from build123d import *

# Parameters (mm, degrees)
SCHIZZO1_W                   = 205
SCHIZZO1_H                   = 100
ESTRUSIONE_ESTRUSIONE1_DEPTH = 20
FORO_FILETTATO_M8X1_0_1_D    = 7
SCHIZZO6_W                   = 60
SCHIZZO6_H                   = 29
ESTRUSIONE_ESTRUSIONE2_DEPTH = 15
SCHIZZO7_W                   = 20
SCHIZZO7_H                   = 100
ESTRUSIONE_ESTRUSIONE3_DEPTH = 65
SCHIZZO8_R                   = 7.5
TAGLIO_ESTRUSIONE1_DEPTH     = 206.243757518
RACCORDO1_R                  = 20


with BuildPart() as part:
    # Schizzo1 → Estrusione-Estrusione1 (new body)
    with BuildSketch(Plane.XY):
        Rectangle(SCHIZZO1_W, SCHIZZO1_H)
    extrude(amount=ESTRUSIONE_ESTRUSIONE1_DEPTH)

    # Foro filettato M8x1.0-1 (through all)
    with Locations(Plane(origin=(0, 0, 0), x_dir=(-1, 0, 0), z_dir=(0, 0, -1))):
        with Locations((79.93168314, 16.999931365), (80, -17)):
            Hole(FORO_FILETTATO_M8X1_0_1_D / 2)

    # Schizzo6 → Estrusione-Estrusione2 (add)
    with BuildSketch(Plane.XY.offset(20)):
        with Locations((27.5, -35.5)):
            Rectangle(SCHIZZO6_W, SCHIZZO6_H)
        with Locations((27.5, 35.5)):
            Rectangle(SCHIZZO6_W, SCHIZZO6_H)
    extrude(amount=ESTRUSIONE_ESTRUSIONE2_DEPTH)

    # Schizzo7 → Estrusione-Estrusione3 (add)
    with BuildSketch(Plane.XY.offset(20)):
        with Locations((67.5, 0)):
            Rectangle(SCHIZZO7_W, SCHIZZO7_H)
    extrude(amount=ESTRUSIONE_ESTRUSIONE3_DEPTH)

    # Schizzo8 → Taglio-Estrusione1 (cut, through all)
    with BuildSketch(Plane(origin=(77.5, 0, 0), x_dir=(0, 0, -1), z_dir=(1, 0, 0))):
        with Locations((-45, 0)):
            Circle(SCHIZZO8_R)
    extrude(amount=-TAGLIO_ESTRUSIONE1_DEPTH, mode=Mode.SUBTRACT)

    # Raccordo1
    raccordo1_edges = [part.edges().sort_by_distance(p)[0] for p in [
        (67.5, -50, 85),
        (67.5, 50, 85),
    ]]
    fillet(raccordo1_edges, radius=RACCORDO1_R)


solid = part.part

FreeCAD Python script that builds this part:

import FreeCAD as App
import Part
import Sketcher
from FreeCAD import Vector
Q = App.Units.Quantity


def edges_at(feature, points):
    """Names of the edges that pass closest to the given points."""
    edges = feature.Shape.Edges
    near = lambda p: min(range(len(edges)), key=lambda i: edges[i].distToShape(Part.Vertex(*p))[0])
    return sorted({f"Edge{near(p) + 1}" for p in points})

doc = App.newDocument("Part")
body = doc.addObject("PartDesign::Body", "Body")

# Sketch on XY plane
sketch1 = body.newObject("Sketcher::SketchObject", "Sketch")
sketch1.AttachmentSupport = (doc.getObject("XY_Plane"), [""])
sketch1.MapMode = "FlatFace"
sketch1.addGeometry([
    Part.LineSegment(Vector(-102, 50, 0), Vector(-102, -50, 0)),
    Part.LineSegment(Vector(-102, -50, 0), Vector(102, -50, 0)),
    Part.LineSegment(Vector(102, -50, 0), Vector(102, 50, 0)),
    Part.LineSegment(Vector(102, 50, 0), Vector(-102, 50, 0)),
], False)
sketch1.addConstraint([
    Sketcher.Constraint("Coincident", 0, 2, 1, 1),
    Sketcher.Constraint("Coincident", 1, 2, 2, 1),
    Sketcher.Constraint("Coincident", 2, 2, 3, 1),
    Sketcher.Constraint("Coincident", 3, 2, 0, 1),
    Sketcher.Constraint("Vertical", 0),
    Sketcher.Constraint("Horizontal", 1),
    Sketcher.Constraint("Vertical", 2),
    Sketcher.Constraint("Horizontal", 3),
    Sketcher.Constraint("Symmetric", 0, 2, 2, 2, -1, 1),
    Sketcher.Constraint("DistanceX", 1, 1, 1, 2, Q("205 mm")),
    Sketcher.Constraint("DistanceY", 0, 2, 0, 1, Q("100 mm")),
])
pad1 = body.newObject("PartDesign::Pad", "Pad")
pad1.Profile = sketch1
pad1.Length = 20

# Sketch on XY plane
sketch2 = body.newObject("Sketcher::SketchObject", "Sketch001")
sketch2.AttachmentSupport = (doc.getObject("XY_Plane"), [""])
sketch2.MapMode = "FlatFace"
sketch2.addGeometry([
    Part.Circle(Vector(-79.9, 17, 0), Vector(0, 0, 1), 3.5),
    Part.Circle(Vector(-80, -17, 0), Vector(0, 0, 1), 3.5),
], False)
sketch2.addConstraint([
    Sketcher.Constraint("Equal", 0, 1),
    Sketcher.Constraint("Diameter", 0, Q("7 mm")),
    Sketcher.Constraint("DistanceX", 1, 3, -1, 1, Q("80 mm")),
    Sketcher.Constraint("DistanceY", 1, 3, -1, 1, Q("17 mm")),
    Sketcher.Constraint("DistanceY", -1, 1, 0, 3, Q("16.999931 mm")),
    Sketcher.Constraint("DistanceX", 0, 3, -1, 1, Q("79.931683 mm")),
])
doc.recompute()
hole = body.newObject("PartDesign::Hole", "Hole")
hole.Profile = sketch2
hole.ThreadType = "None"
hole.Diameter = 7
hole.DepthType = "ThroughAll"
hole.Reversed = True

# Sketch on XY plane
sketch3 = body.newObject("Sketcher::SketchObject", "Sketch002")
sketch3.AttachmentSupport = (doc.getObject("XY_Plane"), [""])
sketch3.MapMode = "FlatFace"
sketch3.AttachmentOffset = App.Placement(Vector(0, 0, 20), App.Rotation())
sketch3.addGeometry([
    Part.LineSegment(Vector(-2, -21, 0), Vector(-2, -50, 0)),  # 0
    Part.LineSegment(Vector(-2, -50, 0), Vector(58, -50, 0)),  # 1
    Part.LineSegment(Vector(58, -50, 0), Vector(58, -21, 0)),  # 2
    Part.LineSegment(Vector(58, -21, 0), Vector(-2, -21, 0)),  # 3
    Part.LineSegment(Vector(-2, 50, 0), Vector(-2, 21, 0)),  # 4
    Part.LineSegment(Vector(-2, 21, 0), Vector(58, 21, 0)),  # 5
    Part.LineSegment(Vector(58, 21, 0), Vector(58, 50, 0)),  # 6
    Part.LineSegment(Vector(58, 50, 0), Vector(-2, 50, 0)),  # 7
], False)
sketch3.addConstraint([
    Sketcher.Constraint("Coincident", 0, 2, 1, 1),
    Sketcher.Constraint("Coincident", 1, 2, 2, 1),
    Sketcher.Constraint("Coincident", 2, 2, 3, 1),
    Sketcher.Constraint("Coincident", 3, 2, 0, 1),
    Sketcher.Constraint("Coincident", 4, 2, 5, 1),
    Sketcher.Constraint("Coincident", 5, 2, 6, 1),
    Sketcher.Constraint("Coincident", 6, 2, 7, 1),
    Sketcher.Constraint("Coincident", 7, 2, 4, 1),
    Sketcher.Constraint("Vertical", 0),
    Sketcher.Constraint("Horizontal", 1),
    Sketcher.Constraint("Vertical", 2),
    Sketcher.Constraint("Horizontal", 3),
    Sketcher.Constraint("Vertical", 4),
    Sketcher.Constraint("Horizontal", 5),
    Sketcher.Constraint("Vertical", 6),
    Sketcher.Constraint("Horizontal", 7),
    Sketcher.Constraint("Symmetric", 3, 2, 4, 2, -1),
    Sketcher.Constraint("Symmetric", 1, 2, 6, 2, -1),
    Sketcher.Constraint("DistanceX", 1, 1, 1, 2, Q("60 mm")),
    Sketcher.Constraint("DistanceY", 0, 2, 0, 1, Q("29 mm")),
    Sketcher.Constraint("DistanceY", 0, 2, -1, 1, Q("50 mm")),
    Sketcher.Constraint("DistanceX", 0, 2, -1, 1, Q("2.5 mm")),
])
pad2 = body.newObject("PartDesign::Pad", "Pad001")
pad2.Profile = sketch3
pad2.Length = 15

# Sketch on XY plane
sketch4 = body.newObject("Sketcher::SketchObject", "Sketch003")
sketch4.AttachmentSupport = (doc.getObject("XY_Plane"), [""])
sketch4.MapMode = "FlatFace"
sketch4.AttachmentOffset = App.Placement(Vector(0, 0, 20), App.Rotation())
sketch4.addGeometry([
    Part.LineSegment(Vector(58, 50, 0), Vector(58, -50, 0)),
    Part.LineSegment(Vector(58, -50, 0), Vector(78, -50, 0)),
    Part.LineSegment(Vector(78, -50, 0), Vector(78, 50, 0)),
    Part.LineSegment(Vector(78, 50, 0), Vector(58, 50, 0)),
], False)
sketch4.addConstraint([
    Sketcher.Constraint("Coincident", 0, 2, 1, 1),
    Sketcher.Constraint("Coincident", 1, 2, 2, 1),
    Sketcher.Constraint("Coincident", 2, 2, 3, 1),
    Sketcher.Constraint("Coincident", 3, 2, 0, 1),
    Sketcher.Constraint("Vertical", 0),
    Sketcher.Constraint("Horizontal", 1),
    Sketcher.Constraint("Vertical", 2),
    Sketcher.Constraint("Horizontal", 3),
    Sketcher.Constraint("DistanceX", 1, 1, 1, 2, Q("20 mm")),
    Sketcher.Constraint("DistanceY", 0, 2, 0, 1, Q("100 mm")),
    Sketcher.Constraint("DistanceY", 0, 2, -1, 1, Q("50 mm")),
    Sketcher.Constraint("DistanceX", -1, 1, 0, 2, Q("57.5 mm")),
])
pad3 = body.newObject("PartDesign::Pad", "Pad002")
pad3.Profile = sketch4
pad3.Length = 65

# Sketch on YZ plane
sketch5 = body.newObject("Sketcher::SketchObject", "Sketch004")
sketch5.AttachmentSupport = (doc.getObject("YZ_Plane"), [""])
sketch5.MapMode = "FlatFace"
sketch5.AttachmentOffset = App.Placement(Vector(0, 0, 77.5), App.Rotation())
sketch5.addGeometry(Part.Circle(Vector(0, 45, 0), Vector(0, 0, 1), 8), False)
sketch5.addConstraint([
    Sketcher.Constraint("PointOnObject", 0, 3, -2),
    Sketcher.Constraint("Diameter", 0, Q("15 mm")),
    Sketcher.Constraint("DistanceY", -1, 1, 0, 3, Q("45 mm")),
])
pocket1 = body.newObject("PartDesign::Pocket", "Pocket")
pocket1.Profile = sketch5
pocket1.Type = "ThroughAll"
doc.recompute()

fillet = body.newObject("PartDesign::Fillet", "Fillet")
fillet.Base = (pocket1, edges_at(pocket1, [(67.5, -50, 85), (67.5, 50, 85)]))
fillet.Radius = 20

doc.recompute()
